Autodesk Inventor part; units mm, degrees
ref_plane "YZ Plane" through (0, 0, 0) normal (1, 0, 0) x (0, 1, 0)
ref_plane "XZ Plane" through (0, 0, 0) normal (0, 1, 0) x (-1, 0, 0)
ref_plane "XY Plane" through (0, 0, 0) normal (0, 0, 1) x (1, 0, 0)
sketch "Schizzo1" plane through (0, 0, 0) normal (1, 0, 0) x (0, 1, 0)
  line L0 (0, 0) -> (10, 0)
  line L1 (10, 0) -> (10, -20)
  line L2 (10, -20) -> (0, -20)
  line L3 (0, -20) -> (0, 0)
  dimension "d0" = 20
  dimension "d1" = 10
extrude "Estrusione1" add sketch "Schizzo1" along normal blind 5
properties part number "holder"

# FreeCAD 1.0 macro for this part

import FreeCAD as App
import Part
import Sketcher

V = App.Vector
Q = App.Units.Quantity

doc = App.newDocument("Part")
body = doc.addObject("PartDesign::Body", "Body")

# Sketch on YZ plane
sketch1 = body.newObject("Sketcher::SketchObject", "Sketch")
sketch1.AttachmentSupport = (doc.getObject("YZ_Plane"), [""])
sketch1.MapMode = "FlatFace"
sketch1.addGeometry([
    Part.LineSegment(V(10, 0, 0), V(0, 0, 0)),
    Part.LineSegment(V(0, 0, 0), V(0, -20, 0)),
    Part.LineSegment(V(0, -20, 0), V(10, -20, 0)),
    Part.LineSegment(V(10, -20, 0), V(10, 0, 0)),
], False)
sketch1.addConstraint([
    Sketcher.Constraint("Coincident", 0, 2, 1, 1),
    Sketcher.Constraint("Coincident", 1, 2, 2, 1),
    Sketcher.Constraint("Coincident", 2, 2, 3, 1),
    Sketcher.Constraint("Coincident", 3, 2, 0, 1),
    Sketcher.Constraint("Horizontal", 0),
    Sketcher.Constraint("Vertical", 1),
    Sketcher.Constraint("Horizontal", 2),
    Sketcher.Constraint("Vertical", 3),
    Sketcher.Constraint("Coincident", 0, 2, -1, 1),
    Sketcher.Constraint("DistanceX", 0, 2, 0, 1, Q("10 mm")),
    Sketcher.Constraint("DistanceY", 1, 2, 1, 1, Q("20 mm")),
])
pad1 = body.newObject("PartDesign::Pad", "Pad")
pad1.Profile = sketch1
pad1.Length = 5

doc.recompute()
